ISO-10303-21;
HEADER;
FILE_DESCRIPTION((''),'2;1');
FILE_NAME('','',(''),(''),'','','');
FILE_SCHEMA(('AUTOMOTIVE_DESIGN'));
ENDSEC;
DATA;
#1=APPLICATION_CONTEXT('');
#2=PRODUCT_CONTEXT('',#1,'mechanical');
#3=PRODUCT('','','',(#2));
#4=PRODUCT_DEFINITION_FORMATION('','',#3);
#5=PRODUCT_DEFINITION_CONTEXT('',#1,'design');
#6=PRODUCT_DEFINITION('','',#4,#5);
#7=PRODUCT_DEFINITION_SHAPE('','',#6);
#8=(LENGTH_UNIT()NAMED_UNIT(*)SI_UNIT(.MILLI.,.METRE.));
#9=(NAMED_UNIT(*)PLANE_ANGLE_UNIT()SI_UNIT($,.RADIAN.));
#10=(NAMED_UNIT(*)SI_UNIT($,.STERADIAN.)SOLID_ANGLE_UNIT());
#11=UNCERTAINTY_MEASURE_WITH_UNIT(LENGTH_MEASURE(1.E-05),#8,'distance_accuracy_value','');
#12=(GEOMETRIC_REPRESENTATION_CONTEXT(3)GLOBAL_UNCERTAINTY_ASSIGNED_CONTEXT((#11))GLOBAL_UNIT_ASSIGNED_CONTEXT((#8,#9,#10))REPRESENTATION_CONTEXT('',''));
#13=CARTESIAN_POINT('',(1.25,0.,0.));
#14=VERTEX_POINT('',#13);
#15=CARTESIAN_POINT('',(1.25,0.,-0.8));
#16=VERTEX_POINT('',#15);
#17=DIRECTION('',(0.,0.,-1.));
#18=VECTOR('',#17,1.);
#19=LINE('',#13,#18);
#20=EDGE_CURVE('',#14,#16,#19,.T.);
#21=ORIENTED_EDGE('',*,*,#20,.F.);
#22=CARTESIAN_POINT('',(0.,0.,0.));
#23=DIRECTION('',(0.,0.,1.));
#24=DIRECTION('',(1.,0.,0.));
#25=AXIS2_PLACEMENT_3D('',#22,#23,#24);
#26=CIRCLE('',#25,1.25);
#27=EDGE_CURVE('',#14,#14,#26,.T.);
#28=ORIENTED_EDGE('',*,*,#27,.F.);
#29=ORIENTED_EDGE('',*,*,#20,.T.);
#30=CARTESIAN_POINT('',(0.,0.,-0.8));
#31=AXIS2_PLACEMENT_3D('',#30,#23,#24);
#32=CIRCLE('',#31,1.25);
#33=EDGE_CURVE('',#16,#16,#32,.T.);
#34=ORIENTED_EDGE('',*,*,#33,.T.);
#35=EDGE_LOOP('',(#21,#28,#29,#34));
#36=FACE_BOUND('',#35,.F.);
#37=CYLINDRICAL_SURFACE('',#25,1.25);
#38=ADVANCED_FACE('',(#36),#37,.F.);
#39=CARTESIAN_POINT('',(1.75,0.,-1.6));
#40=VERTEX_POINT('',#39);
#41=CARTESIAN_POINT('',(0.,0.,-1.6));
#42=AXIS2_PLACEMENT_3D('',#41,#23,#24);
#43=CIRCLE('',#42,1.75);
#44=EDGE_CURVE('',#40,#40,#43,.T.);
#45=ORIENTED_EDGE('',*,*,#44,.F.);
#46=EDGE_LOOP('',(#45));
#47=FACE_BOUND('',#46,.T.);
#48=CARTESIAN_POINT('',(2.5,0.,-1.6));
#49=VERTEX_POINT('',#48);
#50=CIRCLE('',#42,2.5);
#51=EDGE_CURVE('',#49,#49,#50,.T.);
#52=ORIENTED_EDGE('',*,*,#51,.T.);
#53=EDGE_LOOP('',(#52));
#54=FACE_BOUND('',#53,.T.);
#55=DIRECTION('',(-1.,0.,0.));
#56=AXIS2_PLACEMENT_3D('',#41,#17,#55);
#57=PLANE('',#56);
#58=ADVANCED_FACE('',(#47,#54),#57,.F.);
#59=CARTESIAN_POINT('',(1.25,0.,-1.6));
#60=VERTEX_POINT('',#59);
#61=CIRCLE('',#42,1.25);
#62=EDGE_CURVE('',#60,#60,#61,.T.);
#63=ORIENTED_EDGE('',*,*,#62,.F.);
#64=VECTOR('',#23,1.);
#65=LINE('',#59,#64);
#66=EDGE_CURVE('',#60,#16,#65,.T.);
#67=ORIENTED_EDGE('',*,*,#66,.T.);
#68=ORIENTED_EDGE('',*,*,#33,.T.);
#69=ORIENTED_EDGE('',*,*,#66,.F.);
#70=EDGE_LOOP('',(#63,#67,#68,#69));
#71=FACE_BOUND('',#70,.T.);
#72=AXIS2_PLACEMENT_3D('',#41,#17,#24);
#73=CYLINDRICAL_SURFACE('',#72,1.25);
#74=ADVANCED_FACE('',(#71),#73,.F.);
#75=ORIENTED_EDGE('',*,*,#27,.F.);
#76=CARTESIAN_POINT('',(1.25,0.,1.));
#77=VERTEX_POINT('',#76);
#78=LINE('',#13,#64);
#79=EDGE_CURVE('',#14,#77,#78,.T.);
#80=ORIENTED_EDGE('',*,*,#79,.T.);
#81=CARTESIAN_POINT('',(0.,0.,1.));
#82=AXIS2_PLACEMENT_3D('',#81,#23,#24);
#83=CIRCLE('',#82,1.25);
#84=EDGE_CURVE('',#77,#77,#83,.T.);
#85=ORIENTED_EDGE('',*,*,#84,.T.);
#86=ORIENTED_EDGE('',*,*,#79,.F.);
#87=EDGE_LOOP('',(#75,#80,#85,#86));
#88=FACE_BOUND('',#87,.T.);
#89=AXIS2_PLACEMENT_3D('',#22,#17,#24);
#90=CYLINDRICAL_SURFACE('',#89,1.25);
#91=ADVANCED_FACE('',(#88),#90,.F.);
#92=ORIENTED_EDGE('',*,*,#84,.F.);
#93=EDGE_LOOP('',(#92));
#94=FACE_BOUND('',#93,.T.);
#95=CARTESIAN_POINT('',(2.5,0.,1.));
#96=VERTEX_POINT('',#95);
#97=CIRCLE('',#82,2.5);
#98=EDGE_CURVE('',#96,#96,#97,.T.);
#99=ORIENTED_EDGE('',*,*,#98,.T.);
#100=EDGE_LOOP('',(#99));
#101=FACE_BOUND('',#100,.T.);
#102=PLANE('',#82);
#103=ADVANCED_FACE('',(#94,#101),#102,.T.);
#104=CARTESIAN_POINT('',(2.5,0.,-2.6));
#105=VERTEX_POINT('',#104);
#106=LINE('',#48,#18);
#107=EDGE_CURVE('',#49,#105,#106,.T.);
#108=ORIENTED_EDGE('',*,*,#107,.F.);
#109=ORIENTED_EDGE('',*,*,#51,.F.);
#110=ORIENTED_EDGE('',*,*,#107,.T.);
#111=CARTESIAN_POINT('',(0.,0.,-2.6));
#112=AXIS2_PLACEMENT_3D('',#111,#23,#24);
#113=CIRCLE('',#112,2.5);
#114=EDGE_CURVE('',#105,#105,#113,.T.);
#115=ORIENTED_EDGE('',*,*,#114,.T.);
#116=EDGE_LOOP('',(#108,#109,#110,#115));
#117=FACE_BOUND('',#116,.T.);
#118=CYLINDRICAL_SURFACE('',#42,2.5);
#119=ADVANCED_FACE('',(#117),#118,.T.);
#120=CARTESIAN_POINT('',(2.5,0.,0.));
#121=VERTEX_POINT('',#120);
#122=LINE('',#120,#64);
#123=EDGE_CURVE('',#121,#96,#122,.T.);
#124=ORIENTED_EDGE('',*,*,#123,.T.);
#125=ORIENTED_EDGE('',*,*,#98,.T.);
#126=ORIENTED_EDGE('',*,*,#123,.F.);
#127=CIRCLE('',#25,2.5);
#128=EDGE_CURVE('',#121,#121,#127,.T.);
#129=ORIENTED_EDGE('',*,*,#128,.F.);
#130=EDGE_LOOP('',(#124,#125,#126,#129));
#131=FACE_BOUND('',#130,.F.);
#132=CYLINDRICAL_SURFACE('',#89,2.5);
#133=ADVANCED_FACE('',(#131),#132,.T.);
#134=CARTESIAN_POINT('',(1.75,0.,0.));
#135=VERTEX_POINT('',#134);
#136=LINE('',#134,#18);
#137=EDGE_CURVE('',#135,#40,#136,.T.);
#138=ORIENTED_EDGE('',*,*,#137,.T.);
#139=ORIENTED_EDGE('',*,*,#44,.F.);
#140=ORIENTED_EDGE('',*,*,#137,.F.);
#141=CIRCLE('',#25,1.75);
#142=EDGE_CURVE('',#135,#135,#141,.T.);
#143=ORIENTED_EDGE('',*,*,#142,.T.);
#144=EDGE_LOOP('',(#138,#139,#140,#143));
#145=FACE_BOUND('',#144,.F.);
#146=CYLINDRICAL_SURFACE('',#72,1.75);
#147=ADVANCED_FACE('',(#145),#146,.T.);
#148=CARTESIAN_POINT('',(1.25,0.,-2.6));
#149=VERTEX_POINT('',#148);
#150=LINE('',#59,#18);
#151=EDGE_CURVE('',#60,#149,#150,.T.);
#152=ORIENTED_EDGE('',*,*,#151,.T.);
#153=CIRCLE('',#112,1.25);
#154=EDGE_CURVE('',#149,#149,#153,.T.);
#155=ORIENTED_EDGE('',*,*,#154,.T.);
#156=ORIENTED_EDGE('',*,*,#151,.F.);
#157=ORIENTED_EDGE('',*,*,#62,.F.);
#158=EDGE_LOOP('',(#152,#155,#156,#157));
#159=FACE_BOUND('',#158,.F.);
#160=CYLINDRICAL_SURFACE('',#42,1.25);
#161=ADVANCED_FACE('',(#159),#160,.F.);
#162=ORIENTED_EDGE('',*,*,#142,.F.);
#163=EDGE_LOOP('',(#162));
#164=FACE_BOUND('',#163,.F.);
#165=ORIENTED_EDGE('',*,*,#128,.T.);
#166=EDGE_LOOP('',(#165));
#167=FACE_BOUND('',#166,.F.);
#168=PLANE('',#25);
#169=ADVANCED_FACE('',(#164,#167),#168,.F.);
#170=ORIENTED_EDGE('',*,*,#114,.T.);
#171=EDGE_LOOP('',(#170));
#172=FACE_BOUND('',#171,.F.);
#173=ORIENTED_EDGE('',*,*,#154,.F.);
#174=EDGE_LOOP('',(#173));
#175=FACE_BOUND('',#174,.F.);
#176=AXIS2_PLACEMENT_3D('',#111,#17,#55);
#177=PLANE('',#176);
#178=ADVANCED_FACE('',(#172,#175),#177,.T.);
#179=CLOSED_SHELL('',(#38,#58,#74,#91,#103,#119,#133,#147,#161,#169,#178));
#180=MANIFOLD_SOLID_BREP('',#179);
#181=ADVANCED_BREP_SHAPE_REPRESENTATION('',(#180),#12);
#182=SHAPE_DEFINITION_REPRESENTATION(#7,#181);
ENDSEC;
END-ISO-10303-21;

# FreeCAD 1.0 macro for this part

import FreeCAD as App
import Part
import Sketcher
Q = App.Units.Quantity

doc = App.newDocument("Part")
params = doc.addObject("Spreadsheet::Sheet", "Params")
for row, (alias, value) in enumerate([
    ("sketch1_diameter", "5 mm"),
    ("sketch1_diameter2", "2.5 mm"),
    ("pad1_length", "1 mm"),
    ("sketch2_diameter", "3.5 mm"),
    ("sketch2_diameter2", "2.5 mm"),
    ("pad2_length", "0.8 mm"),
], start=1):
    params.set(f"A{row}", alias)
    params.set(f"B{row}", "=" + value)
    params.setAlias(f"B{row}", alias)

body = doc.addObject("PartDesign::Body", "Body")

# Sketch on XY plane
sketch1 = doc.addObject("Sketcher::SketchObject", "Sketch")
body.addObject(sketch1)
sketch1.AttachmentSupport = (doc.XY_Plane, [""])
sketch1.MapMode = "FlatFace"
sketch1.addGeometry([
    Part.Circle(App.Vector(0, 0, 0), App.Vector(0, 0, 1), 2.5),
    Part.Circle(App.Vector(0, 0, 0), App.Vector(0, 0, 1), 1.2),
], False)
sketch1.addConstraint([
    Sketcher.Constraint("Coincident", 0, 3, -1, 1),
    Sketcher.Constraint("Coincident", 1, 3, -1, 1),
    Sketcher.Constraint("Diameter", 0, Q("5 mm")),
    Sketcher.Constraint("Diameter", 1, Q("2.5 mm")),
])
sketch1.setExpression("Constraints[2]", "Params.sketch1_diameter")
sketch1.setExpression("Constraints[3]", "Params.sketch1_diameter2")
pad1 = doc.addObject("PartDesign::Pad", "Pad")
body.addObject(pad1)
pad1.Profile = sketch1
pad1.setExpression("Length", "Params.pad1_length")

# Sketch on XY plane
sketch2 = doc.addObject("Sketcher::SketchObject", "Sketch001")
body.addObject(sketch2)
sketch2.AttachmentSupport = (doc.XY_Plane, [""])
sketch2.MapMode = "FlatFace"
sketch2.addGeometry([
    Part.Circle(App.Vector(0, 0, 0), App.Vector(0, 0, 1), 1.8),
    Part.Circle(App.Vector(0, 0, 0), App.Vector(0, 0, 1), 1.2),
], False)
sketch2.addConstraint([
    Sketcher.Constraint("Coincident", 0, 3, -1, 1),
    Sketcher.Constraint("Coincident", 1, 3, -1, 1),
    Sketcher.Constraint("Diameter", 0, Q("3.5 mm")),
    Sketcher.Constraint("Diameter", 1, Q("2.5 mm")),
])
sketch2.setExpression("Constraints[2]", "Params.sketch2_diameter")
sketch2.setExpression("Constraints[3]", "Params.sketch2_diameter2")
pad2 = doc.addObject("PartDesign::Pad", "Pad001")
body.addObject(pad2)
pad2.Profile = sketch2
pad2.setExpression("Length", "Params.pad2_length")
pad2.Reversed = True
body2 = doc.addObject("PartDesign::Body", "Body001")
doc.recompute()

body2.BaseFeature = body
doc.recompute()

mirroring = doc.addObject("Part::Mirroring", "Mirroring")
mirroring.Source = body
mirroring.Base = App.Vector(0, 0, -0.8)
mirroring.Normal = App.Vector(0, 0, -1)
body3 = doc.addObject("PartDesign::Body", "Body002")
body3.BaseFeature = mirroring
boolean = doc.addObject("PartDesign::Boolean", "Boolean")
body2.addObject(boolean)
boolean.Type = "Fuse"
boolean.addObjects([body3])
doc.recompute()
mirroring.Visibility = False

doc.recompute()
